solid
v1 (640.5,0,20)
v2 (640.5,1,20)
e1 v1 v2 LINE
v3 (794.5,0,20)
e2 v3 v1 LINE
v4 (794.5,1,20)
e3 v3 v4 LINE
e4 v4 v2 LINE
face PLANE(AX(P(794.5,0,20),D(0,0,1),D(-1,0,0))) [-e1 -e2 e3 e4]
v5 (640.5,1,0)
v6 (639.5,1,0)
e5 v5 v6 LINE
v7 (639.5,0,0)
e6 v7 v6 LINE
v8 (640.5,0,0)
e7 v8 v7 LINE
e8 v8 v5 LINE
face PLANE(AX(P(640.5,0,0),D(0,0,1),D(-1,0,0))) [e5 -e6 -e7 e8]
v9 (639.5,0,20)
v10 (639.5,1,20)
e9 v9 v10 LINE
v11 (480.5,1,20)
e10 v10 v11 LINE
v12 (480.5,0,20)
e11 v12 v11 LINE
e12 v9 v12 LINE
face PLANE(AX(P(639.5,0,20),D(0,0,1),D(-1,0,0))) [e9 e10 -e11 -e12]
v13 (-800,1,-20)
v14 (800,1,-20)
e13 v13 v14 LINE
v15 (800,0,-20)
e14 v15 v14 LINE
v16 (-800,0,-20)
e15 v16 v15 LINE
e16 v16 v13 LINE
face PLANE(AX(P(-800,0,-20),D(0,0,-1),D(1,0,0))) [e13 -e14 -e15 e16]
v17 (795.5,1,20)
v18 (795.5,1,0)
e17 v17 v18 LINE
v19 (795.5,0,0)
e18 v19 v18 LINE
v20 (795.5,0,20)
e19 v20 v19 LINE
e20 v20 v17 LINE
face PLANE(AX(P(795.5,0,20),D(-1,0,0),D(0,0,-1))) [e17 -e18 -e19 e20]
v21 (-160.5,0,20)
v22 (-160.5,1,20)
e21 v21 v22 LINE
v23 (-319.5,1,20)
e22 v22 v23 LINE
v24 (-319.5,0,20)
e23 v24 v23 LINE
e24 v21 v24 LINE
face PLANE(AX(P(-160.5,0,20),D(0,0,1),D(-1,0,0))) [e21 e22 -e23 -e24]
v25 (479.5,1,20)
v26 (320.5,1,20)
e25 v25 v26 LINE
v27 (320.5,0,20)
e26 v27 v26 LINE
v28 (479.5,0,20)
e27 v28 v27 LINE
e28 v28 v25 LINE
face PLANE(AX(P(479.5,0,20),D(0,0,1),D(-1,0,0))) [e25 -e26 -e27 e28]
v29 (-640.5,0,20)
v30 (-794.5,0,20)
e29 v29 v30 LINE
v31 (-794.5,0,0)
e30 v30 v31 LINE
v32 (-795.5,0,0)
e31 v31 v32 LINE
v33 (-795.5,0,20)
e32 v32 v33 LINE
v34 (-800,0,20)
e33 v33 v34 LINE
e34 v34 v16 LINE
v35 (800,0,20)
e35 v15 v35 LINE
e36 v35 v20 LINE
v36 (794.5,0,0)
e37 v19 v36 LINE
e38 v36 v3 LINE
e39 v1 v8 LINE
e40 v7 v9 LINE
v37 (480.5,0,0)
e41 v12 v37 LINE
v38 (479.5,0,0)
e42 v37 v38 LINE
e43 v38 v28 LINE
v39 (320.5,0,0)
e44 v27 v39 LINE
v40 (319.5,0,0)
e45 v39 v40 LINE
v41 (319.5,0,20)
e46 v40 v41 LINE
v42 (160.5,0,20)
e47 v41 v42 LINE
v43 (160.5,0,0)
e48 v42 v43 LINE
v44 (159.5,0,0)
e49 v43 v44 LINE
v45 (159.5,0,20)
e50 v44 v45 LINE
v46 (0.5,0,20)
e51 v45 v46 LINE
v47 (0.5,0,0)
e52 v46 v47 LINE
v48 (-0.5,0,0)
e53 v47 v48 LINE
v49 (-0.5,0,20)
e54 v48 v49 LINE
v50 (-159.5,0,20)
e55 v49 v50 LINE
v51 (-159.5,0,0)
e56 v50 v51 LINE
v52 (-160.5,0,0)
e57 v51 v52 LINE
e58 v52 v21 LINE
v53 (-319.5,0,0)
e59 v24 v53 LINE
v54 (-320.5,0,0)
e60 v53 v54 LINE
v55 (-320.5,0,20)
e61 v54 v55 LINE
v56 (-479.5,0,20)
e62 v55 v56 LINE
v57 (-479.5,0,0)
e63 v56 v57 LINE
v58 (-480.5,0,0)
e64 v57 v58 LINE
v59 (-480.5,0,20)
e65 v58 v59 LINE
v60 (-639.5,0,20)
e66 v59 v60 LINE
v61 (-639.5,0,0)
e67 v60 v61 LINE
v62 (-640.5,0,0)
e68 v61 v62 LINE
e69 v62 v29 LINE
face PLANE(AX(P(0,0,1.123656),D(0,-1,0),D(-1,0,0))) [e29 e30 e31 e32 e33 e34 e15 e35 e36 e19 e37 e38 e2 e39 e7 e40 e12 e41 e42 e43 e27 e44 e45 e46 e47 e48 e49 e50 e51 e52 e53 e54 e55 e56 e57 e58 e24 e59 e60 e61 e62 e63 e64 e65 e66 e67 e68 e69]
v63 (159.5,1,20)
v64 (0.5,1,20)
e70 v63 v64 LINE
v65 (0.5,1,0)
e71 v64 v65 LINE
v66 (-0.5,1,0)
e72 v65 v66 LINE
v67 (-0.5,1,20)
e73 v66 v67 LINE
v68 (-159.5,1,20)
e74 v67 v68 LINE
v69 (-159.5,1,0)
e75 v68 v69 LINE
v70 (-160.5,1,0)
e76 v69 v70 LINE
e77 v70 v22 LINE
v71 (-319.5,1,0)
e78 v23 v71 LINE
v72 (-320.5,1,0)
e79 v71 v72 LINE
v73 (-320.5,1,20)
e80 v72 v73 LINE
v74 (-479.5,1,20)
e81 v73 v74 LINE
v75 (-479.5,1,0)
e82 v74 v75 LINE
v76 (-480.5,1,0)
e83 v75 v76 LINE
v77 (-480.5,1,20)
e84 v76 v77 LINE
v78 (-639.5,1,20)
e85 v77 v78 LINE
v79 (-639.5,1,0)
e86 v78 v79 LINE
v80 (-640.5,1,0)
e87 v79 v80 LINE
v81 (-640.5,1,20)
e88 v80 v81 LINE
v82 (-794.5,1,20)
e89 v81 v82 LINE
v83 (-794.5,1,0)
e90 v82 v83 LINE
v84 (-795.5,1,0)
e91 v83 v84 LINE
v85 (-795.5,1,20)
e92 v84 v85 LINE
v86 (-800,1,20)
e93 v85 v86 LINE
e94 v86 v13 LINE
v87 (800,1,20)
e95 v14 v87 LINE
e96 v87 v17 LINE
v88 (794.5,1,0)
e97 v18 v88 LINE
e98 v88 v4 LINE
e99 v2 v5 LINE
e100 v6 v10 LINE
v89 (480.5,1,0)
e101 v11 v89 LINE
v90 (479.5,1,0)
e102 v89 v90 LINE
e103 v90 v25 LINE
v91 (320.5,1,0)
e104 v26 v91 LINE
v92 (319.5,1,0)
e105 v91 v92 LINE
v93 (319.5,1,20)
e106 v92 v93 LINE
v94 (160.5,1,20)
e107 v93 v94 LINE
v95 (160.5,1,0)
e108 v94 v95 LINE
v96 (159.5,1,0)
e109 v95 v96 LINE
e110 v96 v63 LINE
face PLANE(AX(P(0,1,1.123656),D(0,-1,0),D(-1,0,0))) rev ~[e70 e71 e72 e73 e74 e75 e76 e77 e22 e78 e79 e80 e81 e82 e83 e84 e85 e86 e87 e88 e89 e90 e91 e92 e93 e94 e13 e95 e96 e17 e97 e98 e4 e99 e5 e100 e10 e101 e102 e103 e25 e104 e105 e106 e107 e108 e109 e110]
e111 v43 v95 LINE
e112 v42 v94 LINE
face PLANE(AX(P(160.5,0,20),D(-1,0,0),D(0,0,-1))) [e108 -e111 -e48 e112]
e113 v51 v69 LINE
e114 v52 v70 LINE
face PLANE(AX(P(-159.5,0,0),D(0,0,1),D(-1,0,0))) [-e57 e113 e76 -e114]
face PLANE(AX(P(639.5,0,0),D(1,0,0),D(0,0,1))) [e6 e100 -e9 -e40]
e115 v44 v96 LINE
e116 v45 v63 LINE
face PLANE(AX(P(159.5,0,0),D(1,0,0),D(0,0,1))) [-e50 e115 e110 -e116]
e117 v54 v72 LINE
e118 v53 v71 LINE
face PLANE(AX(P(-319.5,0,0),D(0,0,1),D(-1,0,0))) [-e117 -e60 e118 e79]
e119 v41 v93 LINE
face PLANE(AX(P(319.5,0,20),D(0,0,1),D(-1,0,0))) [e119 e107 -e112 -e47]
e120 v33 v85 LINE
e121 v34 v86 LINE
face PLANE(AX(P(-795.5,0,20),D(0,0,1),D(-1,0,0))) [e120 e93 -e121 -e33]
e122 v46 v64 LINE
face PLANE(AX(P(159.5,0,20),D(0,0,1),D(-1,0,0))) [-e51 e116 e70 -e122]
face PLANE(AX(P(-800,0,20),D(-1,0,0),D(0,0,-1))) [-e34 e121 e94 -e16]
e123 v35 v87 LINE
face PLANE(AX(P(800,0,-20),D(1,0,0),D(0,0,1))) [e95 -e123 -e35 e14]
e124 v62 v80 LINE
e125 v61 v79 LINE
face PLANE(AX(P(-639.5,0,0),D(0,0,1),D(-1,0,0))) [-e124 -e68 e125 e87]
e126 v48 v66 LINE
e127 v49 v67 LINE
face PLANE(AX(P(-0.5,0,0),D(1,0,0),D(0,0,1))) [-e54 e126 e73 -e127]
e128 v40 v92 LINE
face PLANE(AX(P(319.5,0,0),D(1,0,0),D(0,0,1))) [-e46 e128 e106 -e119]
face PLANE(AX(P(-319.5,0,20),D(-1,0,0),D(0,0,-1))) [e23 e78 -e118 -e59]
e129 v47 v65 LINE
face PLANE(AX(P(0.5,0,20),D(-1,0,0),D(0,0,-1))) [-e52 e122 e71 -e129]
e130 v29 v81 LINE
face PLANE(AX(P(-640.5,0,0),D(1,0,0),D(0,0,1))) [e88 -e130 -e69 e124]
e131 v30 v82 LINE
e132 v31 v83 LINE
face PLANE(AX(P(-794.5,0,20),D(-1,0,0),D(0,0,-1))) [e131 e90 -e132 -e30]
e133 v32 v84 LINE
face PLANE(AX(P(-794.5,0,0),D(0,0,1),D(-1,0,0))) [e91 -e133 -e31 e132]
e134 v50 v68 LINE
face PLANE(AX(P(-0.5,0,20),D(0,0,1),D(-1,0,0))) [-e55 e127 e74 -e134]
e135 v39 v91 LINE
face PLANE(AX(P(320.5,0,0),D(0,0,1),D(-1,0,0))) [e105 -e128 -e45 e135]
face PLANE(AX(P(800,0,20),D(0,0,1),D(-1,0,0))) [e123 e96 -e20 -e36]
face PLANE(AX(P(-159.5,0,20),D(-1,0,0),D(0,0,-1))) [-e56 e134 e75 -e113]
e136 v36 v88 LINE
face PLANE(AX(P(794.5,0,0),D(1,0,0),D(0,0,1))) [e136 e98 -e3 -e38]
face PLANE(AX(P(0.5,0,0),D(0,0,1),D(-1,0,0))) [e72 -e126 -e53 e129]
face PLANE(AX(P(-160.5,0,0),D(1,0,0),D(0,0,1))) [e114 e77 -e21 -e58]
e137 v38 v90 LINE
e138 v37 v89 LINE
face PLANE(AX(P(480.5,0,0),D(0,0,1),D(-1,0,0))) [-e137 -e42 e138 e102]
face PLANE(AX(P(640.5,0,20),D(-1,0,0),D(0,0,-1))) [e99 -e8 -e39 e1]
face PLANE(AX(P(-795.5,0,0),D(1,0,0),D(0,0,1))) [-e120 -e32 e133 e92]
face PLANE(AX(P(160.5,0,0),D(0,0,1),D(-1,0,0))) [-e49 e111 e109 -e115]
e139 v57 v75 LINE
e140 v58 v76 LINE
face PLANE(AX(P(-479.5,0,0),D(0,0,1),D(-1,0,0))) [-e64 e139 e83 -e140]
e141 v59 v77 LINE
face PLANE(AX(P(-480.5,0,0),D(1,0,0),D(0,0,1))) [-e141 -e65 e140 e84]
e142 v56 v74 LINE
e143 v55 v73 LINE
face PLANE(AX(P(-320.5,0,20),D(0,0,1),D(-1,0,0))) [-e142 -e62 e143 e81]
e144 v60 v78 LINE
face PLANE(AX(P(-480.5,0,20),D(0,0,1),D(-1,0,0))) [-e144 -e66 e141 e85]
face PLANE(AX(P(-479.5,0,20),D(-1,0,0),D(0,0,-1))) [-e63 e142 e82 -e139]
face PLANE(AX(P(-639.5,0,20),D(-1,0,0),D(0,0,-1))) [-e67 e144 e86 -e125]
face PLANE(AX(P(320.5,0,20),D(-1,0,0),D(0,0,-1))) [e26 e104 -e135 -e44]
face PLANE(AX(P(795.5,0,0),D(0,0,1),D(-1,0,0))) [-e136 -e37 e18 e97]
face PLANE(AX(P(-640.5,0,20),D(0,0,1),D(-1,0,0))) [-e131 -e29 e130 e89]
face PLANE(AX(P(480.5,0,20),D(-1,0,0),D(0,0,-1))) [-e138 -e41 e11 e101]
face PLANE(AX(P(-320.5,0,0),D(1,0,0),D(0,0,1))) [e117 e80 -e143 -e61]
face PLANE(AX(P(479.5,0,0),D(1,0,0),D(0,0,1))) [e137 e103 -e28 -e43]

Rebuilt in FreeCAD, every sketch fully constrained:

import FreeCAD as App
import Part
import Sketcher
Q = App.Units.Quantity

doc = App.newDocument("Part")
params = doc.addObject("Spreadsheet::Sheet", "Params")
for row, (alias, value) in enumerate([
    ("sketch1_width", "1600 mm"),
    ("sketch1_width2", "1 mm"),
    ("sketch1_width3", "154 mm"),
    ("sketch1_width4", "159 mm"),
    ("sketch1_height", "40 mm"),
    ("pad1_length", "1 mm"),
], start=1):
    params.set(f"A{row}", alias)
    params.set(f"B{row}", "=" + value)
    params.setAlias(f"B{row}", alias)

body = doc.addObject("PartDesign::Body", "Body")

sketch1 = doc.addObject("Sketcher::SketchObject", "Sketch")
body.addObject(sketch1)
sketch1.AttachmentSupport = (doc.XZ_Plane, [""])
sketch1.MapMode = "FlatFace"
sketch1.addGeometry([
    Part.LineSegment(App.Vector(800, -20, 0), App.Vector(-800, -20, 0)),
    Part.LineSegment(App.Vector(-800, -20, 0), App.Vector(-800, 20, 0)),
    Part.LineSegment(App.Vector(-800, 20, 0), App.Vector(-795.5, 20, 0)),
    Part.LineSegment(App.Vector(-795.5, 20, 0), App.Vector(-795.5, 0, 0)),
    Part.LineSegment(App.Vector(-795.5, 0, 0), App.Vector(-794.5, 0, 0)),
    Part.LineSegment(App.Vector(-794.5, 0, 0), App.Vector(-794.5, 20, 0)),
    Part.LineSegment(App.Vector(-794.5, 20, 0), App.Vector(-640.5, 20, 0)),
    Part.LineSegment(App.Vector(-640.5, 20, 0), App.Vector(-640.5, 0, 0)),
    Part.LineSegment(App.Vector(-640.5, 0, 0), App.Vector(-639.5, 0, 0)),
    Part.LineSegment(App.Vector(-639.5, 0, 0), App.Vector(-639.5, 20, 0)),
    Part.LineSegment(App.Vector(-639.5, 20, 0), App.Vector(-480.5, 20, 0)),
    Part.LineSegment(App.Vector(-480.5, 20, 0), App.Vector(-480.5, 0, 0)),
    Part.LineSegment(App.Vector(-480.5, 0, 0), App.Vector(-479.5, 0, 0)),
    Part.LineSegment(App.Vector(-479.5, 0, 0), App.Vector(-479.5, 20, 0)),
    Part.LineSegment(App.Vector(-479.5, 20, 0), App.Vector(-320.5, 20, 0)),
    Part.LineSegment(App.Vector(-320.5, 20, 0), App.Vector(-320.5, 0, 0)),
    Part.LineSegment(App.Vector(-320.5, 0, 0), App.Vector(-319.5, 0, 0)),
    Part.LineSegment(App.Vector(-319.5, 0, 0), App.Vector(-319.5, 20, 0)),
    Part.LineSegment(App.Vector(-319.5, 20, 0), App.Vector(-160.5, 20, 0)),
    Part.LineSegment(App.Vector(-160.5, 20, 0), App.Vector(-160.5, 0, 0)),
    Part.LineSegment(App.Vector(-160.5, 0, 0), App.Vector(-159.5, 0, 0)),
    Part.LineSegment(App.Vector(-159.5, 0, 0), App.Vector(-159.5, 20, 0)),
    Part.LineSegment(App.Vector(-159.5, 20, 0), App.Vector(-0.5, 20, 0)),
    Part.LineSegment(App.Vector(-0.5, 20, 0), App.Vector(-0.5, 0, 0)),
    Part.LineSegment(App.Vector(-0.5, 0, 0), App.Vector(0.5, 0, 0)),
    Part.LineSegment(App.Vector(0.5, 0, 0), App.Vector(0.5, 20, 0)),
    Part.LineSegment(App.Vector(0.5, 20, 0), App.Vector(159.5, 20, 0)),
    Part.LineSegment(App.Vector(159.5, 20, 0), App.Vector(159.5, 0, 0)),
    Part.LineSegment(App.Vector(159.5, 0, 0), App.Vector(160.5, 0, 0)),
    Part.LineSegment(App.Vector(160.5, 0, 0), App.Vector(160.5, 20, 0)),
    Part.LineSegment(App.Vector(160.5, 20, 0), App.Vector(319.5, 20, 0)),
    Part.LineSegment(App.Vector(319.5, 20, 0), App.Vector(319.5, 0, 0)),
    Part.LineSegment(App.Vector(319.5, 0, 0), App.Vector(320.5, 0, 0)),
    Part.LineSegment(App.Vector(320.5, 0, 0), App.Vector(320.5, 20, 0)),
    Part.LineSegment(App.Vector(320.5, 20, 0), App.Vector(479.5, 20, 0)),
    Part.LineSegment(App.Vector(479.5, 20, 0), App.Vector(479.5, 0, 0)),
    Part.LineSegment(App.Vector(479.5, 0, 0), App.Vector(480.5, 0, 0)),
    Part.LineSegment(App.Vector(480.5, 0, 0), App.Vector(480.5, 20, 0)),
    Part.LineSegment(App.Vector(480.5, 20, 0), App.Vector(639.5, 20, 0)),
    Part.LineSegment(App.Vector(639.5, 20, 0), App.Vector(639.5, 0, 0)),
    Part.LineSegment(App.Vector(639.5, 0, 0), App.Vector(640.5, 0, 0)),
    Part.LineSegment(App.Vector(640.5, 0, 0), App.Vector(640.5, 20, 0)),
    Part.LineSegment(App.Vector(640.5, 20, 0), App.Vector(794.5, 20, 0)),
    Part.LineSegment(App.Vector(794.5, 20, 0), App.Vector(794.5, 0, 0)),
    Part.LineSegment(App.Vector(794.5, 0, 0), App.Vector(795.5, 0, 0)),
    Part.LineSegment(App.Vector(795.5, 0, 0), App.Vector(795.5, 20, 0)),
    Part.LineSegment(App.Vector(795.5, 20, 0), App.Vector(800, 20, 0)),
    Part.LineSegment(App.Vector(800, 20, 0), App.Vector(800, -20, 0)),
], False)
sketch1.addConstraint([
    Sketcher.Constraint("Coincident", 0, 2, 1, 1),
    Sketcher.Constraint("Coincident", 1, 2, 2, 1),
    Sketcher.Constraint("Coincident", 2, 2, 3, 1),
    Sketcher.Constraint("Coincident", 3, 2, 4, 1),
    Sketcher.Constraint("Coincident", 4, 2, 5, 1),
    Sketcher.Constraint("Coincident", 5, 2, 6, 1),
    Sketcher.Constraint("Coincident", 6, 2, 7, 1),
    Sketcher.Constraint("Coincident", 7, 2, 8, 1),
    Sketcher.Constraint("Coincident", 8, 2, 9, 1),
    Sketcher.Constraint("Coincident", 9, 2, 10, 1),
    Sketcher.Constraint("Coincident", 10, 2, 11, 1),
    Sketcher.Constraint("Coincident", 11, 2, 12, 1),
    Sketcher.Constraint("Coincident", 12, 2, 13, 1),
    Sketcher.Constraint("Coincident", 13, 2, 14, 1),
    Sketcher.Constraint("Coincident", 14, 2, 15, 1),
    Sketcher.Constraint("Coincident", 15, 2, 16, 1),
    Sketcher.Constraint("Coincident", 16, 2, 17, 1),
    Sketcher.Constraint("Coincident", 17, 2, 18, 1),
    Sketcher.Constraint("Coincident", 18, 2, 19, 1),
    Sketcher.Constraint("Coincident", 19, 2, 20, 1),
    Sketcher.Constraint("Coincident", 20, 2, 21, 1),
    Sketcher.Constraint("Coincident", 21, 2, 22, 1),
    Sketcher.Constraint("Coincident", 22, 2, 23, 1),
    Sketcher.Constraint("Coincident", 23, 2, 24, 1),
    Sketcher.Constraint("Coincident", 24, 2, 25, 1),
    Sketcher.Constraint("Coincident", 25, 2, 26, 1),
    Sketcher.Constraint("Coincident", 26, 2, 27, 1),
    Sketcher.Constraint("Coincident", 27, 2, 28, 1),
    Sketcher.Constraint("Coincident", 28, 2, 29, 1),
    Sketcher.Constraint("Coincident", 29, 2, 30, 1),
    Sketcher.Constraint("Coincident", 30, 2, 31, 1),
    Sketcher.Constraint("Coincident", 31, 2, 32, 1),
    Sketcher.Constraint("Coincident", 32, 2, 33, 1),
    Sketcher.Constraint("Coincident", 33, 2, 34, 1),
    Sketcher.Constraint("Coincident", 34, 2, 35, 1),
    Sketcher.Constraint("Coincident", 35, 2, 36, 1),
    Sketcher.Constraint("Coincident", 36, 2, 37, 1),
    Sketcher.Constraint("Coincident", 37, 2, 38, 1),
    Sketcher.Constraint("Coincident", 38, 2, 39, 1),
    Sketcher.Constraint("Coincident", 39, 2, 40, 1),
    Sketcher.Constraint("Coincident", 40, 2, 41, 1),
    Sketcher.Constraint("Coincident", 41, 2, 42, 1),
    Sketcher.Constraint("Coincident", 42, 2, 43, 1),
    Sketcher.Constraint("Coincident", 43, 2, 44, 1),
    Sketcher.Constraint("Coincident", 44, 2, 45, 1),
    Sketcher.Constraint("Coincident", 45, 2, 46, 1),
    Sketcher.Constraint("Coincident", 46, 2, 47, 1),
    Sketcher.Constraint("Coincident", 47, 2, 0, 1),
    Sketcher.Constraint("Horizontal", 0),
    Sketcher.Constraint("Vertical", 1),
    Sketcher.Constraint("Horizontal", 2),
    Sketcher.Constraint("Vertical", 3),
    Sketcher.Constraint("Horizontal", 4),
    Sketcher.Constraint("Vertical", 5),
    Sketcher.Constraint("Horizontal", 6),
    Sketcher.Constraint("Vertical", 7),
    Sketcher.Constraint("Horizontal", 8),
    Sketcher.Constraint("Vertical", 9),
    Sketcher.Constraint("Horizontal", 10),
    Sketcher.Constraint("Vertical", 11),
    Sketcher.Constraint("Horizontal", 12),
    Sketcher.Constraint("Vertical", 13),
    Sketcher.Constraint("Horizontal", 14),
    Sketcher.Constraint("Vertical", 15),
    Sketcher.Constraint("Horizontal", 16),
    Sketcher.Constraint("Vertical", 17),
    Sketcher.Constraint("Horizontal", 18),
    Sketcher.Constraint("Vertical", 19),
    Sketcher.Constraint("Horizontal", 20),
    Sketcher.Constraint("Vertical", 21),
    Sketcher.Constraint("Horizontal", 22),
    Sketcher.Constraint("Vertical", 23),
    Sketcher.Constraint("Horizontal", 24),
    Sketcher.Constraint("Vertical", 25),
    Sketcher.Constraint("Horizontal", 26),
    Sketcher.Constraint("Vertical", 27),
    Sketcher.Constraint("Horizontal", 28),
    Sketcher.Constraint("Vertical", 29),
    Sketcher.Constraint("Horizontal", 30),
    Sketcher.Constraint("Vertical", 31),
    Sketcher.Constraint("Horizontal", 32),
    Sketcher.Constraint("Vertical", 33),
    Sketcher.Constraint("Horizontal", 34),
    Sketcher.Constraint("Vertical", 35),
    Sketcher.Constraint("Horizontal", 36),
    Sketcher.Constraint("Vertical", 37),
    Sketcher.Constraint("Horizontal", 38),
    Sketcher.Constraint("Vertical", 39),
    Sketcher.Constraint("Horizontal", 40),
    Sketcher.Constraint("Vertical", 41),
    Sketcher.Constraint("Horizontal", 42),
    Sketcher.Constraint("Vertical", 43),
    Sketcher.Constraint("Horizontal", 44),
    Sketcher.Constraint("Vertical", 45),
    Sketcher.Constraint("Horizontal", 46),
    Sketcher.Constraint("Vertical", 47),
    Sketcher.Constraint("Symmetric", 23, 2, 24, 2, -1, 1),
    Sketcher.Constraint("Symmetric", 20, 2, 27, 2, -1, 1),
    Sketcher.Constraint("Symmetric", 16, 2, 31, 2, -1, 1),
    Sketcher.Constraint("Symmetric", 12, 2, 35, 2, -1, 1),
    Sketcher.Constraint("Symmetric", 8, 2, 39, 2, -1, 1),
    Sketcher.Constraint("Symmetric", 4, 2, 43, 2, -1, 1),
    Sketcher.Constraint("Symmetric", 0, 2, 46, 2, -1, 1),
    Sketcher.Constraint("Symmetric", 19, 2, 28, 2, -2),
    Sketcher.Constraint("Symmetric", 15, 2, 32, 2, -2),
    Sketcher.Constraint("Symmetric", 11, 2, 36, 2, -2),
    Sketcher.Constraint("Symmetric", 7, 2, 40, 2, -2),
    Sketcher.Constraint("Symmetric", 3, 2, 44, 2, -2),
    Sketcher.Constraint("Horizontal", 2, 2, 5, 2),
    Sketcher.Constraint("Horizontal", 6, 2, 9, 2),
    Sketcher.Constraint("Horizontal", 10, 2, 13, 2),
    Sketcher.Constraint("Horizontal", 14, 2, 17, 2),
    Sketcher.Constraint("Horizontal", 18, 2, 21, 2),
    Sketcher.Constraint("Horizontal", 22, 2, 25, 2),
    Sketcher.Constraint("Horizontal", 26, 2, 29, 2),
    Sketcher.Constraint("Horizontal", 30, 2, 33, 2),
    Sketcher.Constraint("Horizontal", 34, 2, 37, 2),
    Sketcher.Constraint("Horizontal", 38, 2, 41, 2),
    Sketcher.Constraint("Horizontal", 42, 2, 45, 2),
    Sketcher.Constraint("Equal", 4, 8),
    Sketcher.Constraint("Equal", 8, 12),
    Sketcher.Constraint("Equal", 10, 14),
    Sketcher.Constraint("Equal", 12, 16),
    Sketcher.Constraint("Equal", 14, 18),
    Sketcher.Constraint("Equal", 16, 20),
    Sketcher.Constraint("Equal", 18, 22),
    Sketcher.Constraint("Equal", 20, 24),
    Sketcher.Constraint("DistanceX", 0, 2, 0, 1, Q("1600 mm")),
    Sketcher.Constraint("DistanceX", 4, 1, 4, 2, Q("1 mm")),
    Sketcher.Constraint("DistanceX", 6, 1, 6, 2, Q("154 mm")),
    Sketcher.Constraint("DistanceX", 10, 1, 10, 2, Q("159 mm")),
    Sketcher.Constraint("DistanceY", 1, 1, 1, 2, Q("40 mm")),
])
sketch1.setExpression("Constraints[127]", "Params.sketch1_width")
sketch1.setExpression("Constraints[128]", "Params.sketch1_width2")
sketch1.setExpression("Constraints[129]", "Params.sketch1_width3")
sketch1.setExpression("Constraints[130]", "Params.sketch1_width4")
sketch1.setExpression("Constraints[131]", "Params.sketch1_height")
pad1 = doc.addObject("PartDesign::Pad", "Pad")
body.addObject(pad1)
pad1.Profile = sketch1
pad1.setExpression("Length", "Params.pad1_length")
pad1.Reversed = True

doc.recompute()
